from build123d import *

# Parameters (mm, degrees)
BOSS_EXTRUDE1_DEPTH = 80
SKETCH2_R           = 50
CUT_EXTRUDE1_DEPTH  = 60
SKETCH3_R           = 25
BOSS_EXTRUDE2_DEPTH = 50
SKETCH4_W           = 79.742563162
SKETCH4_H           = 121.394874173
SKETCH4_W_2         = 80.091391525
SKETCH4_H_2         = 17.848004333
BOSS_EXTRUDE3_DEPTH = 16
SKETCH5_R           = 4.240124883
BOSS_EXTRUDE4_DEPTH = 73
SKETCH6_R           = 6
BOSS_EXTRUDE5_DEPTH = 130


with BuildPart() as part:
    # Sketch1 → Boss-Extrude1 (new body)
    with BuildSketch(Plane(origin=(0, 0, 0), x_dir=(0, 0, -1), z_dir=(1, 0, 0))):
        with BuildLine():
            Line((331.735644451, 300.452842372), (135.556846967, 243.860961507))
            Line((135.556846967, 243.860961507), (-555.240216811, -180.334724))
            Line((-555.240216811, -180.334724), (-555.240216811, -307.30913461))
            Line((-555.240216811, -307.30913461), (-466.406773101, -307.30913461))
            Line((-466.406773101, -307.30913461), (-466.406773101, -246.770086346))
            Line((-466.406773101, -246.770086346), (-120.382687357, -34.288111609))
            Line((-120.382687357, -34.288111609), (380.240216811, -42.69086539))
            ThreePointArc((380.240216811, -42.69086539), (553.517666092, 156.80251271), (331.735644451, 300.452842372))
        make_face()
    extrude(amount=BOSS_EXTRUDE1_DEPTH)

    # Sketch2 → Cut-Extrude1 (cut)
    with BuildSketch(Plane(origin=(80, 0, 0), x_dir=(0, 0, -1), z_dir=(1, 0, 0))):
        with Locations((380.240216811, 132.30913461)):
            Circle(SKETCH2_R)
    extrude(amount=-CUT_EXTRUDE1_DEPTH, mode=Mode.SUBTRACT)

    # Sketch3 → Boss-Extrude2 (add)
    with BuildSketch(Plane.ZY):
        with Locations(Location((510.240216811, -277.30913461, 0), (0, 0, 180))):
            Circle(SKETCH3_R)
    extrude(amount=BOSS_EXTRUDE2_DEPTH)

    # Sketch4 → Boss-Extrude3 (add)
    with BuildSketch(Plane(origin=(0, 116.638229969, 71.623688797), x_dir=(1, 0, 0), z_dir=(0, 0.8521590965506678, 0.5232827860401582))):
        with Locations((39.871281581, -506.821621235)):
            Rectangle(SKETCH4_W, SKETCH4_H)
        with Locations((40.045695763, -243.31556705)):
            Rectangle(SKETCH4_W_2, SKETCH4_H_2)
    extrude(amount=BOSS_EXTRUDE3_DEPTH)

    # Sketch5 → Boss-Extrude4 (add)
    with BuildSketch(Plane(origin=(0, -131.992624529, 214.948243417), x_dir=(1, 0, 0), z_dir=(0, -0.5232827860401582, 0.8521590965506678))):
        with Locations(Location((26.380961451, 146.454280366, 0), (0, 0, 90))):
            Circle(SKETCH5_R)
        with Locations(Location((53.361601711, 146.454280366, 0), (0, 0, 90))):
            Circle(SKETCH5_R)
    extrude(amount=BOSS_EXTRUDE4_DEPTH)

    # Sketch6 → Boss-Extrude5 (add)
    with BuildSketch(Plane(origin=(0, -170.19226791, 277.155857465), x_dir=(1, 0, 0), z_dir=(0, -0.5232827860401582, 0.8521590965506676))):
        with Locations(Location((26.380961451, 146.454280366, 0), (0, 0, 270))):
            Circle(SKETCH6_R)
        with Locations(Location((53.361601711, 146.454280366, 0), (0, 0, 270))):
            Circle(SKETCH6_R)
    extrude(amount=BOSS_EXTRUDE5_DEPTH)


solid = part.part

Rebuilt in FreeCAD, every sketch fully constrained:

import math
import FreeCAD as App
import Part
import Sketcher

V = App.Vector
Q = App.Units.Quantity


def add_polygon(sketch, points):
    """Adds a closed chain of lines whose ends are joined by coincident constraints."""
    first, n = sketch.GeometryCount, len(points)
    for a, b in zip(points, points[1:] + points[:1]):
        sketch.addGeometry(Part.LineSegment(App.Vector(*a, 0), App.Vector(*b, 0)), False)
    for i in range(n):
        sketch.addConstraint(Sketcher.Constraint("Coincident", first + i, 2, first + (i + 1) % n, 1))

doc = App.newDocument("Part")
body = doc.addObject("PartDesign::Body", "Body")

sketch1 = body.newObject("Sketcher::SketchObject", "Sketch")
sketch1.AttachmentSupport = (doc.getObject("YZ_Plane"), [""])
sketch1.MapMode = "FlatFace"
sketch1.addGeometry([
    Part.LineSegment(V(300, -332, 0), V(244, -136, 0)),
    Part.LineSegment(V(244, -136, 0), V(-180, 555, 0)),
    Part.LineSegment(V(-180, 555, 0), V(-307, 555, 0)),
    Part.LineSegment(V(-307, 555, 0), V(-307, 466, 0)),
    Part.LineSegment(V(-307, 466, 0), V(-247, 466, 0)),
    Part.LineSegment(V(-247, 466, 0), V(-34, 120, 0)),
    Part.LineSegment(V(-34, 120, 0), V(-43, -380, 0)),
    Part.ArcOfCircle(Part.Circle(V(132, -380, 0), V(0, 0, 1), 175), math.radians(180), math.radians(376)),
], False)
sketch1.addConstraint([
    Sketcher.Constraint("Coincident", 0, 2, 1, 1),
    Sketcher.Constraint("Coincident", 1, 2, 2, 1),
    Sketcher.Constraint("Coincident", 2, 2, 3, 1),
    Sketcher.Constraint("Coincident", 3, 2, 4, 1),
    Sketcher.Constraint("Coincident", 4, 2, 5, 1),
    Sketcher.Constraint("Coincident", 5, 2, 6, 1),
    Sketcher.Constraint("Coincident", 6, 2, 7, 1),
    Sketcher.Constraint("Tangent", 7, 2, 0, 1),
    Sketcher.Constraint("Horizontal", 2),
    Sketcher.Constraint("Vertical", 3),
    Sketcher.Constraint("Horizontal", 4),
    Sketcher.Constraint("Parallel", 1, 5),
    Sketcher.Constraint("Horizontal", 7, 3, 6, 2),
    Sketcher.Constraint("Radius", 7, Q("175 mm")),
    Sketcher.Constraint("Distance", 1, Q("810.643302 mm")),
    Sketcher.Constraint("DistanceX", 2, 2, 2, 1, Q("126.974411 mm")),
    Sketcher.Constraint("DistanceX", 4, 1, 4, 2, Q("60.539048 mm")),
    Sketcher.Constraint("Distance", 0, Q("204.178259 mm")),
    Sketcher.Constraint("DistanceY", 3, 2, 3, 1, Q("88.833444 mm")),
    Sketcher.Constraint("DistanceX", -1, 1, 0, 2, Q("243.860962 mm")),
    Sketcher.Constraint("DistanceX", 5, 2, -1, 1, Q("34.288112 mm")),
    Sketcher.Constraint("DistanceY", 7, 3, 0, 2, Q("244.68337 mm")),
    Sketcher.Constraint("DistanceX", 1, 2, 7, 3, Q("312.643859 mm")),
    Sketcher.Constraint("DistanceY", 7, 3, -1, 1, Q("380.240217 mm")),
])
pad1 = body.newObject("PartDesign::Pad", "Pad")
pad1.Profile = sketch1
pad1.Length = 80

sketch2 = body.newObject("Sketcher::SketchObject", "Sketch001")
sketch2.AttachmentSupport = (doc.getObject("YZ_Plane"), [""])
sketch2.MapMode = "FlatFace"
sketch2.AttachmentOffset = App.Placement(V(0, 0, 80), App.Rotation())
sketch2.addGeometry(Part.Circle(V(132, -380, 0), V(0, 0, 1), 50), False)
sketch2.addConstraint([
    Sketcher.Constraint("Diameter", 0, Q("100 mm")),
    Sketcher.Constraint("DistanceX", -1, 1, 0, 3, Q("132.309135 mm")),
    Sketcher.Constraint("DistanceY", 0, 3, -1, 1, Q("380.240217 mm")),
])
pocket1 = body.newObject("PartDesign::Pocket", "Pocket")
pocket1.Profile = sketch2
pocket1.Length = 60

sketch3 = body.newObject("Sketcher::SketchObject", "Sketch002")
sketch3.AttachmentSupport = (doc.getObject("YZ_Plane"), [""])
sketch3.MapMode = "FlatFace"
sketch3.addGeometry(Part.Circle(V(-277, 510, 0), V(0, 0, 1), 25), False)
sketch3.addConstraint([
    Sketcher.Constraint("Diameter", 0, Q("50 mm")),
    Sketcher.Constraint("DistanceX", 0, 3, -1, 1, Q("277.309135 mm")),
    Sketcher.Constraint("DistanceY", -1, 1, 0, 3, Q("510.240217 mm")),
])
pad2 = body.newObject("PartDesign::Pad", "Pad001")
pad2.Profile = sketch3
pad2.Length = 50
pad2.Reversed = True

sketch4 = body.newObject("Sketcher::SketchObject", "Sketch003")
sketch4.Placement = App.Placement(V(0, 116.63823, 71.623689), App.Rotation(V(1, 0, 0), V(0, 0.523282786, -0.852159097), V(0, 0.852159097, 0.523282786), "ZXY"))
add_polygon(sketch4, [(0, -446), (0, -568), (80, -568), (80, -446)])
add_polygon(sketch4, [(0, -234), (0, -252), (80, -252), (80, -234)])
sketch4.addConstraint([
    Sketcher.Constraint("Vertical", 0),
    Sketcher.Constraint("Horizontal", 1),
    Sketcher.Constraint("Vertical", 2),
    Sketcher.Constraint("Horizontal", 3),
    Sketcher.Constraint("Vertical", 4),
    Sketcher.Constraint("Horizontal", 5),
    Sketcher.Constraint("Vertical", 6),
    Sketcher.Constraint("Horizontal", 7),
    Sketcher.Constraint("PointOnObject", 0, 2, -2),
    Sketcher.Constraint("PointOnObject", 4, 2, -2),
    Sketcher.Constraint("DistanceX", 5, 1, 5, 2, Q("80.091392 mm")),
    Sketcher.Constraint("DistanceX", 1, 1, 1, 2, Q("79.742563 mm")),
    Sketcher.Constraint("DistanceY", 0, 2, 0, 1, Q("121.394874 mm")),
    Sketcher.Constraint("DistanceY", 4, 2, 4, 1, Q("17.848004 mm")),
    Sketcher.Constraint("DistanceY", 0, 2, -1, 1, Q("567.519059 mm")),
    Sketcher.Constraint("DistanceY", 4, 2, -1, 1, Q("252.239569 mm")),
])
pad3 = body.newObject("PartDesign::Pad", "Pad002")
pad3.Profile = sketch4
pad3.Length = 16

sketch5 = body.newObject("Sketcher::SketchObject", "Sketch004")
sketch5.Placement = App.Placement(V(0, -131.992625, 214.948243), App.Rotation(V(1, 0, 0), V(0, 0.852159097, 0.523282786), V(0, -0.523282786, 0.852159097), "ZXY"))
sketch5.addGeometry([
    Part.Circle(V(26.4, 146.5, 0), V(0, 0, 1), 4.2),
    Part.Circle(V(53.4, 146.5, 0), V(0, 0, 1), 4.2),
], False)
sketch5.addConstraint([
    Sketcher.Constraint("Equal", 0, 1),
    Sketcher.Constraint("Horizontal", 0, 3, 1, 3),
    Sketcher.Constraint("Diameter", 0, Q("8.48025 mm")),
    Sketcher.Constraint("DistanceX", -1, 1, 1, 3, Q("53.361602 mm")),
    Sketcher.Constraint("DistanceX", -1, 1, 0, 3, Q("26.380961 mm")),
    Sketcher.Constraint("DistanceY", -1, 1, 0, 3, Q("146.45428 mm")),
])
pad4 = body.newObject("PartDesign::Pad", "Pad003")
pad4.Profile = sketch5
pad4.Length = 73

sketch6 = body.newObject("Sketcher::SketchObject", "Sketch005")
sketch6.Placement = App.Placement(V(0, -170.192268, 277.155857), App.Rotation(V(1, 0, 0), V(0, 0.852159097, 0.523282786), V(0, -0.523282786, 0.852159097), "ZXY"))
sketch6.addGeometry([
    Part.Circle(V(26, 146, 0), V(0, 0, 1), 6),
    Part.Circle(V(53, 146, 0), V(0, 0, 1), 6),
], False)
sketch6.addConstraint([
    Sketcher.Constraint("Equal", 0, 1),
    Sketcher.Constraint("Horizontal", 0, 3, 1, 3),
    Sketcher.Constraint("Diameter", 0, Q("12 mm")),
    Sketcher.Constraint("DistanceX", -1, 1, 1, 3, Q("53.361602 mm")),
    Sketcher.Constraint("DistanceX", -1, 1, 0, 3, Q("26.380961 mm")),
    Sketcher.Constraint("DistanceY", -1, 1, 0, 3, Q("146.45428 mm")),
])
pad5 = body.newObject("PartDesign::Pad", "Pad004")
pad5.Profile = sketch6
pad5.Length = 130

doc.recompute()
